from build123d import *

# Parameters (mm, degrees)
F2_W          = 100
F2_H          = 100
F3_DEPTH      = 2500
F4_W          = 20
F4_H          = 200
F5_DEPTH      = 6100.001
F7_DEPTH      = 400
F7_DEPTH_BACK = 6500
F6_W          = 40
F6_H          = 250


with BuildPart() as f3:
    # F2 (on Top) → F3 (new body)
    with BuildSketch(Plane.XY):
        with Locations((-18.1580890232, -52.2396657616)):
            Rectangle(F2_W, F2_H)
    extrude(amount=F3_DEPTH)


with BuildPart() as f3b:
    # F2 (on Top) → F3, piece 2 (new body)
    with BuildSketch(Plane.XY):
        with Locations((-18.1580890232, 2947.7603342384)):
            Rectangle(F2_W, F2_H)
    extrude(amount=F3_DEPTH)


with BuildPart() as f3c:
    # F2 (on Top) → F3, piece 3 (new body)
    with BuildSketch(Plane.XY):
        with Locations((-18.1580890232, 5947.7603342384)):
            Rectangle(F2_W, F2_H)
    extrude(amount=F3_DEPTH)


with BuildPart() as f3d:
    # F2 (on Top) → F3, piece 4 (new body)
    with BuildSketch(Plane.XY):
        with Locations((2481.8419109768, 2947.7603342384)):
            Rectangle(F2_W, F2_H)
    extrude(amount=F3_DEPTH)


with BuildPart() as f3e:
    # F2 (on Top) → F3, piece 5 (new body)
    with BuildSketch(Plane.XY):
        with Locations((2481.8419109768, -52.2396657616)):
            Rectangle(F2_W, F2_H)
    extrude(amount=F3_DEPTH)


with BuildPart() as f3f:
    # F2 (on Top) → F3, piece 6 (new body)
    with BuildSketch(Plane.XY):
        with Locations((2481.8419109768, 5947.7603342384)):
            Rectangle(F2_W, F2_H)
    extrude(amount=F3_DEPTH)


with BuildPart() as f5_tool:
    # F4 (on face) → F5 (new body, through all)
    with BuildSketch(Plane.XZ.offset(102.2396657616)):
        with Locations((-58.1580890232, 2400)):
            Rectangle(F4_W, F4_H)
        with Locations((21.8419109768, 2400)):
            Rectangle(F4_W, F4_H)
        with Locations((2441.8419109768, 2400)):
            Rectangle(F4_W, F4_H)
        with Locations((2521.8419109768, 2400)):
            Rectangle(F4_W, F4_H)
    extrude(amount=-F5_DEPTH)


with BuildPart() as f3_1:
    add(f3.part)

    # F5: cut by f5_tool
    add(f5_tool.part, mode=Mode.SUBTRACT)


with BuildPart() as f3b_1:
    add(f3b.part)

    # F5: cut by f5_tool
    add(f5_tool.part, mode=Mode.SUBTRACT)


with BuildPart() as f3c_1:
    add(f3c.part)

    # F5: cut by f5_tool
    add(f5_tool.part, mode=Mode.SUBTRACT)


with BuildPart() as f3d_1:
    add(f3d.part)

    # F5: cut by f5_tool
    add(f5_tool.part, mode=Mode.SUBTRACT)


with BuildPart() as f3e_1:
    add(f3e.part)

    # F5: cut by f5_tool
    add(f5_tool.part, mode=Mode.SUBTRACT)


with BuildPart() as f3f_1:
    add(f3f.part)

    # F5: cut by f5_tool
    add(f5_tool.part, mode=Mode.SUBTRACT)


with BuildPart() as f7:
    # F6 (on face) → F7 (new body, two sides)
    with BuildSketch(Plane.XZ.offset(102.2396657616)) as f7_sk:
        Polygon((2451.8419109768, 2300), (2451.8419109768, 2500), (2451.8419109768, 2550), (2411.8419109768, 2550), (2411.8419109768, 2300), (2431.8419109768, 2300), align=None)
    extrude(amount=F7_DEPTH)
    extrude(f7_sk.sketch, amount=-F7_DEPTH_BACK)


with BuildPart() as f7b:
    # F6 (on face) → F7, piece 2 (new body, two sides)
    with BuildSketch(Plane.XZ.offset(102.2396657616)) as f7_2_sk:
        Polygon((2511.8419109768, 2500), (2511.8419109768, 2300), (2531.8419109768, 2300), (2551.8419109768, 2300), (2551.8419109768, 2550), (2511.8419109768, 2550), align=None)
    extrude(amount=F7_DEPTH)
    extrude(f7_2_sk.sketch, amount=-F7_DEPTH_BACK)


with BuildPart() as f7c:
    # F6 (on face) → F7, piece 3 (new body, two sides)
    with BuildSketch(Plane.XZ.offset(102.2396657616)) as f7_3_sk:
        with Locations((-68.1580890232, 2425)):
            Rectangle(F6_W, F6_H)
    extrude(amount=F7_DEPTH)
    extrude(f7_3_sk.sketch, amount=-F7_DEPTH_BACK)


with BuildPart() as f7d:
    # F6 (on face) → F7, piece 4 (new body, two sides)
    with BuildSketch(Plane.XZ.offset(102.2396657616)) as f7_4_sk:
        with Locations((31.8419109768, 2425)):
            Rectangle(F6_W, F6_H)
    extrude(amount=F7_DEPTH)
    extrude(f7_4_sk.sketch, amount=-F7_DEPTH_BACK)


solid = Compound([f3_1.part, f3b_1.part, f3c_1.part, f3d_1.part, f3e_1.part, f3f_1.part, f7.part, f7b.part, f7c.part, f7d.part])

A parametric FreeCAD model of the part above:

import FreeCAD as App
import Part
import Sketcher

V = App.Vector


def add_polygon(sketch, points):
    """Adds a closed chain of lines whose ends are joined by coincident constraints."""
    first, n = sketch.GeometryCount, len(points)
    for a, b in zip(points, points[1:] + points[:1]):
        sketch.addGeometry(Part.LineSegment(App.Vector(*a, 0), App.Vector(*b, 0)), False)
    for i in range(n):
        sketch.addConstraint(Sketcher.Constraint("Coincident", first + i, 2, first + (i + 1) % n, 1))

doc = App.newDocument("Part")
body = doc.addObject("PartDesign::Body", "Body")

sketch1 = body.newObject("Sketcher::SketchObject", "Sketch")
sketch1.AttachmentSupport = (doc.getObject("XY_Plane"), [""])
sketch1.MapMode = "FlatFace"
add_polygon(sketch1, [(-68, -2), (-68, -102), (32, -102), (32, -2)])
sketch1.addConstraint(Sketcher.Constraint("Vertical", 0))
sketch1.addConstraint(Sketcher.Constraint("Horizontal", 1))
sketch1.addConstraint(Sketcher.Constraint("Vertical", 2))
sketch1.addConstraint(Sketcher.Constraint("Horizontal", 3))
sketch1.addConstraint(Sketcher.Constraint("Equal", 3, 0))
sketch1.addConstraint(Sketcher.Constraint("DistanceX", 1, 1, 1, 2, 100.0))
sketch1.addConstraint(Sketcher.Constraint("DistanceX", 0, 2, -1, 1, 68.158089))
sketch1.addConstraint(Sketcher.Constraint("DistanceY", 0, 2, -1, 1, 102.239666))
pad1 = body.newObject("PartDesign::Pad", "Pad")
pad1.Profile = sketch1
pad1.Length = 2500
body2 = doc.addObject("PartDesign::Body", "Body001")

sketch2 = body2.newObject("Sketcher::SketchObject", "Sketch001")
sketch2.AttachmentSupport = (doc.getObject("XY_Plane001"), [""])
sketch2.MapMode = "FlatFace"
add_polygon(sketch2, [(-68, 2998), (-68, 2898), (32, 2898), (32, 2998)])
sketch2.addConstraint(Sketcher.Constraint("Vertical", 0))
sketch2.addConstraint(Sketcher.Constraint("Horizontal", 1))
sketch2.addConstraint(Sketcher.Constraint("Vertical", 2))
sketch2.addConstraint(Sketcher.Constraint("Horizontal", 3))
sketch2.addConstraint(Sketcher.Constraint("Equal", 3, 0))
sketch2.addConstraint(Sketcher.Constraint("DistanceX", 1, 1, 1, 2, 100.0))
sketch2.addConstraint(Sketcher.Constraint("DistanceX", 0, 2, -1, 1, 68.158089))
sketch2.addConstraint(Sketcher.Constraint("DistanceY", -1, 1, 0, 2, 2897.760334))
pad2 = body2.newObject("PartDesign::Pad", "Pad001")
pad2.Profile = sketch2
pad2.Length = 2500
body3 = doc.addObject("PartDesign::Body", "Body002")

sketch3 = body3.newObject("Sketcher::SketchObject", "Sketch002")
sketch3.AttachmentSupport = (doc.getObject("XY_Plane002"), [""])
sketch3.MapMode = "FlatFace"
add_polygon(sketch3, [(-68, 5998), (-68, 5898), (32, 5898), (32, 5998)])
sketch3.addConstraint(Sketcher.Constraint("Vertical", 0))
sketch3.addConstraint(Sketcher.Constraint("Horizontal", 1))
sketch3.addConstraint(Sketcher.Constraint("Vertical", 2))
sketch3.addConstraint(Sketcher.Constraint("Horizontal", 3))
sketch3.addConstraint(Sketcher.Constraint("Equal", 3, 0))
sketch3.addConstraint(Sketcher.Constraint("DistanceX", 1, 1, 1, 2, 100.0))
sketch3.addConstraint(Sketcher.Constraint("DistanceX", 0, 2, -1, 1, 68.158089))
sketch3.addConstraint(Sketcher.Constraint("DistanceY", -1, 1, 0, 2, 5897.760334))
pad3 = body3.newObject("PartDesign::Pad", "Pad002")
pad3.Profile = sketch3
pad3.Length = 2500
body4 = doc.addObject("PartDesign::Body", "Body003")

sketch4 = body4.newObject("Sketcher::SketchObject", "Sketch003")
sketch4.AttachmentSupport = (doc.getObject("XY_Plane003"), [""])
sketch4.MapMode = "FlatFace"
add_polygon(sketch4, [(2432, 2998), (2432, 2898), (2532, 2898), (2532, 2998)])
sketch4.addConstraint(Sketcher.Constraint("Vertical", 0))
sketch4.addConstraint(Sketcher.Constraint("Horizontal", 1))
sketch4.addConstraint(Sketcher.Constraint("Vertical", 2))
sketch4.addConstraint(Sketcher.Constraint("Horizontal", 3))
sketch4.addConstraint(Sketcher.Constraint("Equal", 3, 0))
sketch4.addConstraint(Sketcher.Constraint("DistanceX", 1, 1, 1, 2, 100.0))
sketch4.addConstraint(Sketcher.Constraint("DistanceX", -1, 1, 0, 2, 2431.841911))
sketch4.addConstraint(Sketcher.Constraint("DistanceY", -1, 1, 0, 2, 2897.760334))
pad4 = body4.newObject("PartDesign::Pad", "Pad003")
pad4.Profile = sketch4
pad4.Length = 2500
body5 = doc.addObject("PartDesign::Body", "Body004")

sketch5 = body5.newObject("Sketcher::SketchObject", "Sketch004")
sketch5.AttachmentSupport = (doc.getObject("XY_Plane004"), [""])
sketch5.MapMode = "FlatFace"
add_polygon(sketch5, [(2432, -2), (2432, -102), (2532, -102), (2532, -2)])
sketch5.addConstraint(Sketcher.Constraint("Vertical", 0))
sketch5.addConstraint(Sketcher.Constraint("Horizontal", 1))
sketch5.addConstraint(Sketcher.Constraint("Vertical", 2))
sketch5.addConstraint(Sketcher.Constraint("Horizontal", 3))
sketch5.addConstraint(Sketcher.Constraint("Equal", 3, 0))
sketch5.addConstraint(Sketcher.Constraint("DistanceX", 1, 1, 1, 2, 100.0))
sketch5.addConstraint(Sketcher.Constraint("DistanceX", -1, 1, 0, 2, 2431.841911))
sketch5.addConstraint(Sketcher.Constraint("DistanceY", 0, 2, -1, 1, 102.239666))
pad5 = body5.newObject("PartDesign::Pad", "Pad004")
pad5.Profile = sketch5
pad5.Length = 2500
body6 = doc.addObject("PartDesign::Body", "Body005")

sketch6 = body6.newObject("Sketcher::SketchObject", "Sketch005")
sketch6.AttachmentSupport = (doc.getObject("XY_Plane005"), [""])
sketch6.MapMode = "FlatFace"
add_polygon(sketch6, [(2432, 5998), (2432, 5898), (2532, 5898), (2532, 5998)])
sketch6.addConstraint(Sketcher.Constraint("Vertical", 0))
sketch6.addConstraint(Sketcher.Constraint("Horizontal", 1))
sketch6.addConstraint(Sketcher.Constraint("Vertical", 2))
sketch6.addConstraint(Sketcher.Constraint("Horizontal", 3))
sketch6.addConstraint(Sketcher.Constraint("Equal", 3, 0))
sketch6.addConstraint(Sketcher.Constraint("DistanceX", 1, 1, 1, 2, 100.0))
sketch6.addConstraint(Sketcher.Constraint("DistanceX", -1, 1, 0, 2, 2431.841911))
sketch6.addConstraint(Sketcher.Constraint("DistanceY", -1, 1, 0, 2, 5897.760334))
pad6 = body6.newObject("PartDesign::Pad", "Pad005")
pad6.Profile = sketch6
pad6.Length = 2500
body7 = doc.addObject("PartDesign::Body", "Body006")
body7.AllowCompound = True

sketch7 = body7.newObject("Sketcher::SketchObject", "Sketch006")
sketch7.AttachmentSupport = (doc.getObject("XZ_Plane006"), [""])
sketch7.MapMode = "FlatFace"
sketch7.AttachmentOffset = App.Placement(V(0, 0, 102.239666), App.Rotation())
add_polygon(sketch7, [(-68, 2500), (-68, 2300), (-48, 2300), (-48, 2500)])
add_polygon(sketch7, [(12, 2500), (12, 2300), (32, 2300), (32, 2500)])
add_polygon(sketch7, [(2432, 2500), (2432, 2300), (2452, 2300), (2452, 2500)])
add_polygon(sketch7, [(2512, 2500), (2512, 2300), (2532, 2300), (2532, 2500)])
sketch7.addConstraint(Sketcher.Constraint("Vertical", 0))
sketch7.addConstraint(Sketcher.Constraint("Horizontal", 1))
sketch7.addConstraint(Sketcher.Constraint("Vertical", 2))
sketch7.addConstraint(Sketcher.Constraint("Horizontal", 3))
sketch7.addConstraint(Sketcher.Constraint("Vertical", 4))
sketch7.addConstraint(Sketcher.Constraint("Horizontal", 5))
sketch7.addConstraint(Sketcher.Constraint("Vertical", 6))
sketch7.addConstraint(Sketcher.Constraint("Horizontal", 7))
sketch7.addConstraint(Sketcher.Constraint("Vertical", 8))
sketch7.addConstraint(Sketcher.Constraint("Horizontal", 9))
sketch7.addConstraint(Sketcher.Constraint("Vertical", 10))
sketch7.addConstraint(Sketcher.Constraint("Horizontal", 11))
sketch7.addConstraint(Sketcher.Constraint("Vertical", 12))
sketch7.addConstraint(Sketcher.Constraint("Horizontal", 13))
sketch7.addConstraint(Sketcher.Constraint("Vertical", 14))
sketch7.addConstraint(Sketcher.Constraint("Horizontal", 15))
sketch7.addConstraint(Sketcher.Constraint("Horizontal", 1, 2, 4, 2))
sketch7.addConstraint(Sketcher.Constraint("Horizontal", 3, 2, 6, 2))
sketch7.addConstraint(Sketcher.Constraint("Horizontal", 5, 2, 8, 2))
sketch7.addConstraint(Sketcher.Constraint("Horizontal", 7, 2, 10, 2))
sketch7.addConstraint(Sketcher.Constraint("Horizontal", 9, 2, 12, 2))
sketch7.addConstraint(Sketcher.Constraint("Horizontal", 11, 2, 14, 2))
sketch7.addConstraint(Sketcher.Constraint("Equal", 3, 5))
sketch7.addConstraint(Sketcher.Constraint("Equal", 7, 9))
sketch7.addConstraint(Sketcher.Constraint("Equal", 11, 13))
sketch7.addConstraint(Sketcher.Constraint("DistanceX", 1, 1, 1, 2, 20.0))
sketch7.addConstraint(Sketcher.Constraint("DistanceY", 0, 2, 0, 1, 200.0))
sketch7.addConstraint(Sketcher.Constraint("DistanceY", -1, 1, 0, 2, 2300.0))
sketch7.addConstraint(Sketcher.Constraint("DistanceX", 1, 2, 4, 2, 60.0))
sketch7.addConstraint(Sketcher.Constraint("DistanceX", 5, 2, 8, 2, 2400.0))
sketch7.addConstraint(Sketcher.Constraint("DistanceX", 9, 2, 12, 2, 60.0))
sketch7.addConstraint(Sketcher.Constraint("DistanceX", 0, 2, -1, 1, 68.158089))
pad7 = body7.newObject("PartDesign::Pad", "Pad006")
pad7.Profile = sketch7
pad7.Length = 6100.001
pad7.Reversed = True
doc.recompute()

body8 = doc.addObject("PartDesign::Body", "Body007")
body8.BaseFeature = body7
boolean = body.newObject("PartDesign::Boolean", "Boolean")
boolean.Type = "Cut"
boolean.addObjects([body8])
doc.recompute()

body9 = doc.addObject("PartDesign::Body", "Body008")
body9.BaseFeature = body7
boolean2 = body2.newObject("PartDesign::Boolean", "Boolean001")
boolean2.Type = "Cut"
boolean2.addObjects([body9])
doc.recompute()

body10 = doc.addObject("PartDesign::Body", "Body009")
body10.BaseFeature = body7
boolean3 = body3.newObject("PartDesign::Boolean", "Boolean002")
boolean3.Type = "Cut"
boolean3.addObjects([body10])
doc.recompute()

body11 = doc.addObject("PartDesign::Body", "Body010")
body11.BaseFeature = body7
boolean4 = body4.newObject("PartDesign::Boolean", "Boolean003")
boolean4.Type = "Cut"
boolean4.addObjects([body11])
doc.recompute()

body12 = doc.addObject("PartDesign::Body", "Body011")
body12.BaseFeature = body7
boolean5 = body5.newObject("PartDesign::Boolean", "Boolean004")
boolean5.Type = "Cut"
boolean5.addObjects([body12])
doc.recompute()

boolean6 = body6.newObject("PartDesign::Boolean", "Boolean005")
boolean6.Type = "Cut"
boolean6.addObjects([body7])
body13 = doc.addObject("PartDesign::Body", "Body012")

sketch8 = body13.newObject("Sketcher::SketchObject", "Sketch007")
sketch8.AttachmentSupport = (doc.getObject("XZ_Plane012"), [""])
sketch8.MapMode = "FlatFace"
sketch8.AttachmentOffset = App.Placement(V(0, 0, 102.239666), App.Rotation())
add_polygon(sketch8, [(2452, 2300), (2452, 2550), (2412, 2550), (2412, 2300)])
sketch8.addConstraint(Sketcher.Constraint("Vertical", 0))
sketch8.addConstraint(Sketcher.Constraint("Horizontal", 1))
sketch8.addConstraint(Sketcher.Constraint("Vertical", 2))
sketch8.addConstraint(Sketcher.Constraint("Horizontal", 3))
sketch8.addConstraint(Sketcher.Constraint("DistanceX", 1, 2, 1, 1, 40.0))
sketch8.addConstraint(Sketcher.Constraint("DistanceY", 0, 1, 0, 2, 250.0))
sketch8.addConstraint(Sketcher.Constraint("DistanceY", -1, 1, 0, 2, 2550.0))
sketch8.addConstraint(Sketcher.Constraint("DistanceX", -1, 1, 0, 2, 2451.841911))
pad8 = body13.newObject("PartDesign::Pad", "Pad007")
pad8.Profile = sketch8
pad8.Type = "TwoLengths"
pad8.Length = 400
pad8.Length2 = 6500
body14 = doc.addObject("PartDesign::Body", "Body013")

sketch9 = body14.newObject("Sketcher::SketchObject", "Sketch008")
sketch9.AttachmentSupport = (doc.getObject("XZ_Plane013"), [""])
sketch9.MapMode = "FlatFace"
sketch9.AttachmentOffset = App.Placement(V(0, 0, 102.239666), App.Rotation())
add_polygon(sketch9, [(2512, 2300), (2552, 2300), (2552, 2550), (2512, 2550)])
sketch9.addConstraint(Sketcher.Constraint("Horizontal", 0))
sketch9.addConstraint(Sketcher.Constraint("Vertical", 1))
sketch9.addConstraint(Sketcher.Constraint("Horizontal", 2))
sketch9.addConstraint(Sketcher.Constraint("Vertical", 3))
sketch9.addConstraint(Sketcher.Constraint("DistanceX", 0, 1, 0, 2, 40.0))
sketch9.addConstraint(Sketcher.Constraint("DistanceY", 1, 1, 1, 2, 250.0))
sketch9.addConstraint(Sketcher.Constraint("DistanceY", -1, 1, 0, 2, 2300.0))
sketch9.addConstraint(Sketcher.Constraint("DistanceX", -1, 1, 0, 2, 2551.841911))
pad9 = body14.newObject("PartDesign::Pad", "Pad008")
pad9.Profile = sketch9
pad9.Type = "TwoLengths"
pad9.Length = 400
pad9.Length2 = 6500
body15 = doc.addObject("PartDesign::Body", "Body014")

sketch10 = body15.newObject("Sketcher::SketchObject", "Sketch009")
sketch10.AttachmentSupport = (doc.getObject("XZ_Plane014"), [""])
sketch10.MapMode = "FlatFace"
sketch10.AttachmentOffset = App.Placement(V(0, 0, 102.239666), App.Rotation())
add_polygon(sketch10, [(-88, 2550), (-88, 2300), (-48, 2300), (-48, 2550)])
sketch10.addConstraint(Sketcher.Constraint("Vertical", 0))
sketch10.addConstraint(Sketcher.Constraint("Horizontal", 1))
sketch10.addConstraint(Sketcher.Constraint("Vertical", 2))
sketch10.addConstraint(Sketcher.Constraint("Horizontal", 3))
sketch10.addConstraint(Sketcher.Constraint("DistanceX", 1, 1, 1, 2, 40.0))
sketch10.addConstraint(Sketcher.Constraint("DistanceY", 0, 2, 0, 1, 250.0))
sketch10.addConstraint(Sketcher.Constraint("DistanceY", -1, 1, 0, 2, 2300.0))
sketch10.addConstraint(Sketcher.Constraint("DistanceX", 0, 2, -1, 1, 88.158089))
pad10 = body15.newObject("PartDesign::Pad", "Pad009")
pad10.Profile = sketch10
pad10.Type = "TwoLengths"
pad10.Length = 400
pad10.Length2 = 6500
body16 = doc.addObject("PartDesign::Body", "Body015")

sketch11 = body16.newObject("Sketcher::SketchObject", "Sketch010")
sketch11.AttachmentSupport = (doc.getObject("XZ_Plane015"), [""])
sketch11.MapMode = "FlatFace"
sketch11.AttachmentOffset = App.Placement(V(0, 0, 102.239666), App.Rotation())
add_polygon(sketch11, [(12, 2550), (12, 2300), (52, 2300), (52, 2550)])
sketch11.addConstraint(Sketcher.Constraint("Vertical", 0))
sketch11.addConstraint(Sketcher.Constraint("Horizontal", 1))
sketch11.addConstraint(Sketcher.Constraint("Vertical", 2))
sketch11.addConstraint(Sketcher.Constraint("Horizontal", 3))
sketch11.addConstraint(Sketcher.Constraint("DistanceX", 1, 1, 1, 2, 40.0))
sketch11.addConstraint(Sketcher.Constraint("DistanceY", 0, 2, 0, 1, 250.0))
sketch11.addConstraint(Sketcher.Constraint("DistanceY", -1, 1, 0, 2, 2300.0))
sketch11.addConstraint(Sketcher.Constraint("DistanceX", -1, 1, 0, 2, 11.841911))
pad11 = body16.newObject("PartDesign::Pad", "Pad010")
pad11.Profile = sketch11
pad11.Type = "TwoLengths"
pad11.Length = 400
pad11.Length2 = 6500

doc.recompute()
